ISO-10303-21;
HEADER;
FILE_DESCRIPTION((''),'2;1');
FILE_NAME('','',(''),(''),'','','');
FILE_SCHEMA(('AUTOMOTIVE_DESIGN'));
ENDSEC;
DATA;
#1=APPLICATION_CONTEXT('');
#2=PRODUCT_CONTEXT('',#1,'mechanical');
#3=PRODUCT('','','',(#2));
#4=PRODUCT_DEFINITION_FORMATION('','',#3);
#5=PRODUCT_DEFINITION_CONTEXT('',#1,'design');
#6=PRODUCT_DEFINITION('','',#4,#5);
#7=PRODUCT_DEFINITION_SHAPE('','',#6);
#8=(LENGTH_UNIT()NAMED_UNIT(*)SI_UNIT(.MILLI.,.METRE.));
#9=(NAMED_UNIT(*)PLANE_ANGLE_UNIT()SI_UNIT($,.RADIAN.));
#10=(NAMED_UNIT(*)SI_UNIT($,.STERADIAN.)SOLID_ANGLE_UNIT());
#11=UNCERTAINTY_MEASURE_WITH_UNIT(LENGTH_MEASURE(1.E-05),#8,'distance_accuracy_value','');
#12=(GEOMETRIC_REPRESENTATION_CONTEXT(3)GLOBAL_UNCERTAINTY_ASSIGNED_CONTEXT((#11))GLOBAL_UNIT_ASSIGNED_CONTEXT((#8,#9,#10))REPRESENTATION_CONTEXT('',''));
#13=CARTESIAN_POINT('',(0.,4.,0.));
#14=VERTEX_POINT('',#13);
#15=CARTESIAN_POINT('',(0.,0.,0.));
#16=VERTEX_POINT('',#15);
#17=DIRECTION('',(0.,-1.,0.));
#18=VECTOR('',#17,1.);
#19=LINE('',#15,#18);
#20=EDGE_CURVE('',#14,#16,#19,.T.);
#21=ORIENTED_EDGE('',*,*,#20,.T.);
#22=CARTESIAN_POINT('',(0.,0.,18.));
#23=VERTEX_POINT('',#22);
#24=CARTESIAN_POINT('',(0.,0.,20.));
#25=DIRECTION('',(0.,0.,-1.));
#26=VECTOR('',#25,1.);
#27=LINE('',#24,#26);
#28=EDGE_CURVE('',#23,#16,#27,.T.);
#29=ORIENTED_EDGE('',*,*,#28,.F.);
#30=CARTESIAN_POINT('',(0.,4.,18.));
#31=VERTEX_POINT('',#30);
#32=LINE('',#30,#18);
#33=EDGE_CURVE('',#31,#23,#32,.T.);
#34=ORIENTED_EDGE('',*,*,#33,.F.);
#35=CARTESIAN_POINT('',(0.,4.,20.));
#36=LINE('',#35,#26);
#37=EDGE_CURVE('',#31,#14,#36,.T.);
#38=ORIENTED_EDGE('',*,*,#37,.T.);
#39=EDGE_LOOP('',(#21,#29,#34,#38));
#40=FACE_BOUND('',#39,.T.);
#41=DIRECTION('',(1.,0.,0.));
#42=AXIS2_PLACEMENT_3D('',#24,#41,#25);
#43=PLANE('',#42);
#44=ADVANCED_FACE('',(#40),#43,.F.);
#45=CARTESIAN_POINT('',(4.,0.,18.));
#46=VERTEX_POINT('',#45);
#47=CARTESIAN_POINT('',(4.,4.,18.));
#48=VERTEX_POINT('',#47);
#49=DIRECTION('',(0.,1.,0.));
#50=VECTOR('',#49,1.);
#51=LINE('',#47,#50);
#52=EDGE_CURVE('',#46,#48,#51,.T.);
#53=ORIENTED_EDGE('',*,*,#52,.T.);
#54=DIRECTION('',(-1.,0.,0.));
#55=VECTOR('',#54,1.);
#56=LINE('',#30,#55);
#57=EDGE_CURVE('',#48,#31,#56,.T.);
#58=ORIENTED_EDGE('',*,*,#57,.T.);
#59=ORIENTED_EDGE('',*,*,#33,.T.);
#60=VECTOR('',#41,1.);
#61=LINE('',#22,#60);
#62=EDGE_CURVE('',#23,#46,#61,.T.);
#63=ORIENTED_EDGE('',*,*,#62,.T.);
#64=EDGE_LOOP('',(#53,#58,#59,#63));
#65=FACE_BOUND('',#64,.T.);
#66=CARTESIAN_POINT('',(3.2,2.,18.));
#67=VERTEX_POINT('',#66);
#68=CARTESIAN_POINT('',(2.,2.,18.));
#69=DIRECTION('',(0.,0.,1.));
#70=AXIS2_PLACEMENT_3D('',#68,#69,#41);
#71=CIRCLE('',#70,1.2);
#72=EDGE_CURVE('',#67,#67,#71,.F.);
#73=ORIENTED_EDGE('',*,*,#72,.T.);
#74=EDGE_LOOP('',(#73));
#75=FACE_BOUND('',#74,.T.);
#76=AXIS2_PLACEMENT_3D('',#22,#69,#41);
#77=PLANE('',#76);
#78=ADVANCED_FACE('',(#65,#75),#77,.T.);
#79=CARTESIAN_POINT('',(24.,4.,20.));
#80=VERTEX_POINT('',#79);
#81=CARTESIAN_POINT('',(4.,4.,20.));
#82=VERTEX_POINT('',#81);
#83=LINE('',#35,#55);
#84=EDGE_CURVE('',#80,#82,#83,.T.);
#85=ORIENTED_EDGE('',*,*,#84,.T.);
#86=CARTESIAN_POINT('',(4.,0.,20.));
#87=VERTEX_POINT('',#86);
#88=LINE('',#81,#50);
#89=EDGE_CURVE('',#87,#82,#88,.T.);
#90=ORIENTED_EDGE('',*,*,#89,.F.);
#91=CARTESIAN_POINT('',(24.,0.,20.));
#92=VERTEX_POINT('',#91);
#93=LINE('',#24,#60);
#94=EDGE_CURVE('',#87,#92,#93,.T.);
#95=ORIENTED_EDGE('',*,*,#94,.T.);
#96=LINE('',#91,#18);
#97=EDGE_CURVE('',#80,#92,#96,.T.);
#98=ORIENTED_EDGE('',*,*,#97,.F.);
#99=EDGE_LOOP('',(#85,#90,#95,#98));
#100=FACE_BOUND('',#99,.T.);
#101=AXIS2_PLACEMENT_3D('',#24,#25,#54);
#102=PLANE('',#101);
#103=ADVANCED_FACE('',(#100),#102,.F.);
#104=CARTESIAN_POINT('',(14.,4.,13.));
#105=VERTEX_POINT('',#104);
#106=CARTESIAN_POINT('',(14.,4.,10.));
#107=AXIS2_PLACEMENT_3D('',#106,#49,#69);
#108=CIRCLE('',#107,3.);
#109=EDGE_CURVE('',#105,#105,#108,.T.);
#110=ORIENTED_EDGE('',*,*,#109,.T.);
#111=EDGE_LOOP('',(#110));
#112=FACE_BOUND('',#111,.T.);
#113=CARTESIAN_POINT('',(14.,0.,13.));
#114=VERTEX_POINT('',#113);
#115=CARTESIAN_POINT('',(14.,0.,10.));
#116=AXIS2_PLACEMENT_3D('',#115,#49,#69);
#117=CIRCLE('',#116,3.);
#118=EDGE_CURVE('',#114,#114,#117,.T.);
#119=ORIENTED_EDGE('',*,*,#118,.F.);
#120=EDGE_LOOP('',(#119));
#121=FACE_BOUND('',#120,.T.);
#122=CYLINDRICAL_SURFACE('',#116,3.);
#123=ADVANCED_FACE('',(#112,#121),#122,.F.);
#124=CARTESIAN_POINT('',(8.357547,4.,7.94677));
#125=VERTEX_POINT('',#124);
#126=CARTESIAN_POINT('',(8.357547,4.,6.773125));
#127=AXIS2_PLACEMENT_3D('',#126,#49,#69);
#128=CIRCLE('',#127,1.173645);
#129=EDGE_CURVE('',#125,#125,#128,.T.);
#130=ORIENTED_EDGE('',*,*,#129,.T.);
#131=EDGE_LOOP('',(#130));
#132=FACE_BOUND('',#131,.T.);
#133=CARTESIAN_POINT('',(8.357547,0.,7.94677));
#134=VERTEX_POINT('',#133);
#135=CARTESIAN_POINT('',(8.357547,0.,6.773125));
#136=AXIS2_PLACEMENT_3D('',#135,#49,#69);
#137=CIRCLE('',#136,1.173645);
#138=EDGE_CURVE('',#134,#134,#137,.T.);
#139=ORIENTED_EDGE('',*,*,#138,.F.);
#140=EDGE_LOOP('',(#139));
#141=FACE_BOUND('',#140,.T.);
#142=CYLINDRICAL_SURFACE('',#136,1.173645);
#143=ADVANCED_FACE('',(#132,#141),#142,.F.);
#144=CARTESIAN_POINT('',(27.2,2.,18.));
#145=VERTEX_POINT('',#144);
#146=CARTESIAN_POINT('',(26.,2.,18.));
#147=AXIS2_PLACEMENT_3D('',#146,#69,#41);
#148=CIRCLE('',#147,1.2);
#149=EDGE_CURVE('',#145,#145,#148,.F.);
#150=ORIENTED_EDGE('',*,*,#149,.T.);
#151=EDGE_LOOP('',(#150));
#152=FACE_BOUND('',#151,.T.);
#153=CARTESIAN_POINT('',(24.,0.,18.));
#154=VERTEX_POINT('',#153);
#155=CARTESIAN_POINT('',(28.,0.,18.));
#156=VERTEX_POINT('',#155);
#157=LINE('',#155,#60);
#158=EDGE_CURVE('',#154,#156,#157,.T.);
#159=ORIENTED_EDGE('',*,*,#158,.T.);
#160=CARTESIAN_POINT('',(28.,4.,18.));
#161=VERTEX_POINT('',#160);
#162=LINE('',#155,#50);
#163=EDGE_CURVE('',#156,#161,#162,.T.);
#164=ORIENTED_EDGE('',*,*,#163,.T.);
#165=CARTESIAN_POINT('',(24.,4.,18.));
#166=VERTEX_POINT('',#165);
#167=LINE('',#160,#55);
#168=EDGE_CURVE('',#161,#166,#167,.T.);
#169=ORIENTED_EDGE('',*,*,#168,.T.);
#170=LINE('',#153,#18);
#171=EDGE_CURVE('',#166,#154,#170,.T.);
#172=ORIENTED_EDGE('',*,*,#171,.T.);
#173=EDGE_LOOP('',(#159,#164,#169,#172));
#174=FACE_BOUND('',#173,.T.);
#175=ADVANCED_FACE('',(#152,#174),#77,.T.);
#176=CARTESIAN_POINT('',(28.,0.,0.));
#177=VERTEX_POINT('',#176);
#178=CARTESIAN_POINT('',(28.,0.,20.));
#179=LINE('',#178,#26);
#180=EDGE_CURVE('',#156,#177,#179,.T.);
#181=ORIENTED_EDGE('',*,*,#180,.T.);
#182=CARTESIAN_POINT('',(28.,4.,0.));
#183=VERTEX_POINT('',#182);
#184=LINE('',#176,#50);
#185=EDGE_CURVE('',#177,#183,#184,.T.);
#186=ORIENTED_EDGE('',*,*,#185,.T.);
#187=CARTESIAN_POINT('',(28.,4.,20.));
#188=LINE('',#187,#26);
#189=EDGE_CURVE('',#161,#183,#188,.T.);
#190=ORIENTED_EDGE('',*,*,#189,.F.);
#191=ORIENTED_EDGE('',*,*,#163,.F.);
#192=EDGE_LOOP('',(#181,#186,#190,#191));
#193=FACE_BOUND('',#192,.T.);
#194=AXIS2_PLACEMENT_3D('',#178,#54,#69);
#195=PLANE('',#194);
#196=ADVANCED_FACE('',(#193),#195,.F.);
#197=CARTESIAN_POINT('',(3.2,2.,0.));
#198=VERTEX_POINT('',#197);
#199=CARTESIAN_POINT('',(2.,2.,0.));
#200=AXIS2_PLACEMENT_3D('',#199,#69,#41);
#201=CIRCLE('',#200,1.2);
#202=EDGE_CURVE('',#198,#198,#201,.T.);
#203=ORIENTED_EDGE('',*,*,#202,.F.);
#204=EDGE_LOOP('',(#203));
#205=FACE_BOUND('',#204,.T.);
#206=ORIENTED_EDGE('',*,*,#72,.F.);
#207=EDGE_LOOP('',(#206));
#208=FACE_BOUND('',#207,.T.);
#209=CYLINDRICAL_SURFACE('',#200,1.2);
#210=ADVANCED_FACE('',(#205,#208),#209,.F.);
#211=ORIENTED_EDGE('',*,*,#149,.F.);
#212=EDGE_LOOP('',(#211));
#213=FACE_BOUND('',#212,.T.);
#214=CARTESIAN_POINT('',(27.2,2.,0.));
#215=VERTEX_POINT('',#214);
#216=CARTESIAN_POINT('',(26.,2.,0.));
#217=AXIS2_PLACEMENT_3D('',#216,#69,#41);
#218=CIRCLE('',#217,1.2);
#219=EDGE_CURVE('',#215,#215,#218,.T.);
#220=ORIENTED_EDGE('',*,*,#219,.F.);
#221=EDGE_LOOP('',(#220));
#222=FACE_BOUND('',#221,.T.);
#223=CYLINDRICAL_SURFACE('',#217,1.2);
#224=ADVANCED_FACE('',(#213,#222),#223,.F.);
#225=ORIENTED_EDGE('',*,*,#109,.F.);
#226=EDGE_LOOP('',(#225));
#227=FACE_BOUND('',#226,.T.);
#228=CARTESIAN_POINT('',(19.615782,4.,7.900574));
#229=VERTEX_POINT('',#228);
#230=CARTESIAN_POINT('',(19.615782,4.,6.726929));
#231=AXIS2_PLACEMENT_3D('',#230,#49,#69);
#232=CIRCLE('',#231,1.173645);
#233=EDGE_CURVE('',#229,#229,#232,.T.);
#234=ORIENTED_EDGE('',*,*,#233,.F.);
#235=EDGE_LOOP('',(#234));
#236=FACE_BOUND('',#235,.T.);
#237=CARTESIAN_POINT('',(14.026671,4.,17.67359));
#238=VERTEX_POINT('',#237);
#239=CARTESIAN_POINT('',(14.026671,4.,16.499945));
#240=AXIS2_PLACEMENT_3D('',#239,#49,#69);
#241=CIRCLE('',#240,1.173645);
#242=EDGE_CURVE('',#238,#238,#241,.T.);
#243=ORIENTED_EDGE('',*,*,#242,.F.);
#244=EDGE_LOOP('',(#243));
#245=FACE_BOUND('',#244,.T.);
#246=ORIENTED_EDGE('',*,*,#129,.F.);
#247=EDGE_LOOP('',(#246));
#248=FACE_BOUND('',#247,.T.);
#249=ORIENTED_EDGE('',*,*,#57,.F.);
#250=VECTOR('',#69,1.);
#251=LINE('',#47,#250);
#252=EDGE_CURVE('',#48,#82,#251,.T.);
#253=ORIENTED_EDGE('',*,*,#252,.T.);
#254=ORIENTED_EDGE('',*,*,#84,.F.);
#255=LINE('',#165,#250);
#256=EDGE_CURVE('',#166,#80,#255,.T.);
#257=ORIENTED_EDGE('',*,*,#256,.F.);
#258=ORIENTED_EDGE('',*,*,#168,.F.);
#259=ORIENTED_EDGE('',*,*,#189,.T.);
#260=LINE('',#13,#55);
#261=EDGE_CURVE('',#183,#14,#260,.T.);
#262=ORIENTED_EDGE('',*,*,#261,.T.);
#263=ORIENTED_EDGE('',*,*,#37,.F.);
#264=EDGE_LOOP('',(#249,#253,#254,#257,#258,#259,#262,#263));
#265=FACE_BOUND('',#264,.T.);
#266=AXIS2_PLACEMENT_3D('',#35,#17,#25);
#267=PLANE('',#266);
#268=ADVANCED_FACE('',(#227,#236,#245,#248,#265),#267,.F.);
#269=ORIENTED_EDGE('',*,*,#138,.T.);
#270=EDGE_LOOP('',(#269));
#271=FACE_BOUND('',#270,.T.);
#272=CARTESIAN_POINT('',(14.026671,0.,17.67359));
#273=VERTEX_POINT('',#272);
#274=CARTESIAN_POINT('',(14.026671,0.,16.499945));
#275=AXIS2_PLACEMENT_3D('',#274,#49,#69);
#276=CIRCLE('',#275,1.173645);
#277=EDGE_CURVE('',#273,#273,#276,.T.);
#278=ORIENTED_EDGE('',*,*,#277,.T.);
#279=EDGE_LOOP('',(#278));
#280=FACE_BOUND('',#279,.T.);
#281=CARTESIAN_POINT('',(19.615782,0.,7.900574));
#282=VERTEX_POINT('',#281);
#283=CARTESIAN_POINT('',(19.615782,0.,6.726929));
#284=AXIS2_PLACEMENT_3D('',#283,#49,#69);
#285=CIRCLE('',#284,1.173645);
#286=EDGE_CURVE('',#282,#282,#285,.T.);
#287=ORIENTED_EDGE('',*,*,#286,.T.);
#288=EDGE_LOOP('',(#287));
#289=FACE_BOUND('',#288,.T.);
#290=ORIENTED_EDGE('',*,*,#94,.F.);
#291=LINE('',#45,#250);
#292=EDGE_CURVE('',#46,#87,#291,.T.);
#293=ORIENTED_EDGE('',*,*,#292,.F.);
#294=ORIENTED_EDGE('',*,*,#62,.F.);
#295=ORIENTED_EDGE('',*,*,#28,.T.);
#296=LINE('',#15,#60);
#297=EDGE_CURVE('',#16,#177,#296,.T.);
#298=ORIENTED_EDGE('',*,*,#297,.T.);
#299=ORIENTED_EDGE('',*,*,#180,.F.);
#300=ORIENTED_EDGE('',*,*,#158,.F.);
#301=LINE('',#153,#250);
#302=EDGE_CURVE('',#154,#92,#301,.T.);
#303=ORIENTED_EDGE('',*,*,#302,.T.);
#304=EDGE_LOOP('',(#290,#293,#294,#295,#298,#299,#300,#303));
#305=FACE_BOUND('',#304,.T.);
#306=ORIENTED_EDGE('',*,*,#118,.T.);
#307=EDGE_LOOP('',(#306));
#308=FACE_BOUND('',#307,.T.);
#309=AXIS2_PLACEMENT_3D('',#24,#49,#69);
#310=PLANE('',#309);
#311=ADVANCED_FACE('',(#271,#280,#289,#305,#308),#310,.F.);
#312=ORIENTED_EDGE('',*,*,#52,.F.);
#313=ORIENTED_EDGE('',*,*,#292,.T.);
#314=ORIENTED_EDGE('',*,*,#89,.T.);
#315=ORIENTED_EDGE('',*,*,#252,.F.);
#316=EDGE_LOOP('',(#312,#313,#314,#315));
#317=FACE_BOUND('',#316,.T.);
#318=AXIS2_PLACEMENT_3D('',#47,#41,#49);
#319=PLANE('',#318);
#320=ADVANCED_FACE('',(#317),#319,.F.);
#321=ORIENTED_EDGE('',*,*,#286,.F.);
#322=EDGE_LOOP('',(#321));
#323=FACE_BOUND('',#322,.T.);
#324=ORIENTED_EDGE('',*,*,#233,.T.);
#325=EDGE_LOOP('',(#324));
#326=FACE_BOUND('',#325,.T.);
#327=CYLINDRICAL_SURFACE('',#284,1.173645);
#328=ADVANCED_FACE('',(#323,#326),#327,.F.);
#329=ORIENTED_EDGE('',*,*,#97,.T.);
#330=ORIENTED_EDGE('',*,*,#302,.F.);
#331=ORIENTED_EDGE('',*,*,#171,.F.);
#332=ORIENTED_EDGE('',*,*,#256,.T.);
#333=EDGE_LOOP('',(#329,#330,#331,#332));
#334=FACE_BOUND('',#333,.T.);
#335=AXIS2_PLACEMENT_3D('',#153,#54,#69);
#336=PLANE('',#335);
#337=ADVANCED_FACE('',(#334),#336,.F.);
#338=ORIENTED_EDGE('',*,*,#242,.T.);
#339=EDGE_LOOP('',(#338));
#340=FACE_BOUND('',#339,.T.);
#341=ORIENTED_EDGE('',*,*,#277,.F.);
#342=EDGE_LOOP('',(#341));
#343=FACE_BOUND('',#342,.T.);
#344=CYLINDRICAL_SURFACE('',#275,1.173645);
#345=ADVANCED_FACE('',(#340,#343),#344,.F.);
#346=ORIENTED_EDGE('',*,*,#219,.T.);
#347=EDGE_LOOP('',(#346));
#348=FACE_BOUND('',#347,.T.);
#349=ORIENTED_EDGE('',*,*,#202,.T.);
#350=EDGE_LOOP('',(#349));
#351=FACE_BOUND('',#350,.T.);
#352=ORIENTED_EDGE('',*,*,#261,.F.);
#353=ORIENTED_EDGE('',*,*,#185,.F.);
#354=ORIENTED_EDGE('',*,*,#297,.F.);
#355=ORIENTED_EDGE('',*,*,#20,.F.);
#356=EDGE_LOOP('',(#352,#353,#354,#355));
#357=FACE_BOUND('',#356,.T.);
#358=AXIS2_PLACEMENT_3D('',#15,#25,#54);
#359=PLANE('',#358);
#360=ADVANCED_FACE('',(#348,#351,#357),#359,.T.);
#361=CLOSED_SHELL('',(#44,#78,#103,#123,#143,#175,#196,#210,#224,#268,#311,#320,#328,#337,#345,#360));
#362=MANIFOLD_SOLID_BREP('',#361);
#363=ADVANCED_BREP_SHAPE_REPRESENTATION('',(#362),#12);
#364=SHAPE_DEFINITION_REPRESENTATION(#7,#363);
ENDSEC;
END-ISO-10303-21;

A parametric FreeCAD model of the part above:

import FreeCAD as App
import Part
import Sketcher
Q = App.Units.Quantity


def add_polygon(sketch, points):
    """Adds a closed chain of lines whose ends are joined by coincident constraints."""
    first, n = sketch.GeometryCount, len(points)
    for a, b in zip(points, points[1:] + points[:1]):
        sketch.addGeometry(Part.LineSegment(App.Vector(*a, 0), App.Vector(*b, 0)), False)
    for i in range(n):
        sketch.addConstraint(Sketcher.Constraint("Coincident", first + i, 2, first + (i + 1) % n, 1))

doc = App.newDocument("Part")
body = doc.addObject("PartDesign::Body", "Body")

# Sketch on XY plane
sketch1 = body.newObject("Sketcher::SketchObject", "Sketch")
sketch1.AttachmentSupport = (doc.getObject("XY_Plane"), [""])
sketch1.MapMode = "FlatFace"
add_polygon(sketch1, [(0, 4), (0, 0), (28, 0), (28, 4)])  # lines 0-3
sketch1.addConstraint(Sketcher.Constraint("Vertical", 0))
sketch1.addConstraint(Sketcher.Constraint("Horizontal", 1))
sketch1.addConstraint(Sketcher.Constraint("Vertical", 2))
sketch1.addConstraint(Sketcher.Constraint("Horizontal", 3))
sketch1.addConstraint(Sketcher.Constraint("Coincident", 0, 2, -1, 1))
sketch1.addConstraint(Sketcher.Constraint("DistanceX", 1, 1, 1, 2, Q("28 mm")))
sketch1.addConstraint(Sketcher.Constraint("DistanceY", 0, 2, 0, 1, Q("4 mm")))
pad1 = body.newObject("PartDesign::Pad", "Pad")
pad1.Profile = sketch1
pad1.Length = 20

# Sketch on XY plane
sketch2 = body.newObject("Sketcher::SketchObject", "Sketch001")
sketch2.AttachmentSupport = (doc.getObject("XY_Plane"), [""])
sketch2.MapMode = "FlatFace"
sketch2.AttachmentOffset = App.Placement(App.Vector(0, 0, 20), App.Rotation())
sketch2.addGeometry(Part.Circle(App.Vector(2, 2, 0), App.Vector(0, 0, 1), 1.2), False)
sketch2.addGeometry(Part.Circle(App.Vector(26, 2, 0), App.Vector(0, 0, 1), 1.2), False)
sketch2.addConstraint(Sketcher.Constraint("Equal", 0, 1))
sketch2.addConstraint(Sketcher.Constraint("Horizontal", 0, 3, 1, 3))
sketch2.addConstraint(Sketcher.Constraint("Diameter", 0, Q("2.4 mm")))
sketch2.addConstraint(Sketcher.Constraint("DistanceX", -1, 1, 0, 3, Q("2 mm")))
sketch2.addConstraint(Sketcher.Constraint("DistanceY", -1, 1, 0, 3, Q("2 mm")))
sketch2.addConstraint(Sketcher.Constraint("DistanceX", -1, 1, 1, 3, Q("26 mm")))
pocket1 = body.newObject("PartDesign::Pocket", "Pocket")
pocket1.Profile = sketch2
pocket1.Type = "ThroughAll"

# Sketch on XZ plane
sketch3 = body.newObject("Sketcher::SketchObject", "Sketch002")
sketch3.AttachmentSupport = (doc.getObject("XZ_Plane"), [""])
sketch3.MapMode = "FlatFace"
sketch3.AttachmentOffset = App.Placement(App.Vector(0, 0, -4), App.Rotation())
sketch3.addGeometry(Part.Circle(App.Vector(14, 10, 0), App.Vector(0, 0, 1), 3), False)
sketch3.addGeometry(Part.Circle(App.Vector(8.4, 6.8, 0), App.Vector(0, 0, 1), 1.2), False)
sketch3.addGeometry(Part.Circle(App.Vector(19.6, 6.7, 0), App.Vector(0, 0, 1), 1.2), False)
sketch3.addGeometry(Part.Circle(App.Vector(14, 16.5, 0), App.Vector(0, 0, 1), 1.2), False)
sketch3.addConstraint(Sketcher.Constraint("Equal", 1, 2))
sketch3.addConstraint(Sketcher.Constraint("Equal", 2, 3))
sketch3.addConstraint(Sketcher.Constraint("Diameter", 0, Q("6 mm")))
sketch3.addConstraint(Sketcher.Constraint("DistanceX", -1, 1, 0, 3, Q("14 mm")))
sketch3.addConstraint(Sketcher.Constraint("DistanceY", -1, 1, 0, 3, Q("10 mm")))
sketch3.addConstraint(Sketcher.Constraint("Diameter", 1, Q("2.34729 mm")))
sketch3.addConstraint(Sketcher.Constraint("DistanceY", -1, 1, 2, 3, Q("6.726929 mm")))
sketch3.addConstraint(Sketcher.Constraint("DistanceX", -1, 1, 3, 3, Q("14.026671 mm")))
sketch3.addConstraint(Sketcher.Constraint("DistanceY", 1, 3, 3, 3, Q("9.72682 mm")))
sketch3.addConstraint(Sketcher.Constraint("DistanceX", 3, 3, 2, 3, Q("5.589111 mm")))
sketch3.addConstraint(Sketcher.Constraint("DistanceX", -1, 1, 1, 3, Q("8.357547 mm")))
sketch3.addConstraint(Sketcher.Constraint("DistanceY", -1, 1, 1, 3, Q("6.773125 mm")))
pocket2 = body.newObject("PartDesign::Pocket", "Pocket001")
pocket2.Profile = sketch3
pocket2.Type = "ThroughAll"
pocket2.Reversed = True

# Sketch on XY plane
sketch4 = body.newObject("Sketcher::SketchObject", "Sketch003")
sketch4.AttachmentSupport = (doc.getObject("XY_Plane"), [""])
sketch4.MapMode = "FlatFace"
sketch4.AttachmentOffset = App.Placement(App.Vector(0, 0, 20), App.Rotation())
add_polygon(sketch4, [(0, 4), (0, 0), (4, 0), (4, 4)])  # lines 0-3
add_polygon(sketch4, [(24, 4), (24, 0), (28, 0), (28, 4)])  # lines 4-7
sketch4.addConstraint(Sketcher.Constraint("Vertical", 0))
sketch4.addConstraint(Sketcher.Constraint("Horizontal", 1))
sketch4.addConstraint(Sketcher.Constraint("Vertical", 2))
sketch4.addConstraint(Sketcher.Constraint("Horizontal", 3))
sketch4.addConstraint(Sketcher.Constraint("Vertical", 4))
sketch4.addConstraint(Sketcher.Constraint("Horizontal", 5))
sketch4.addConstraint(Sketcher.Constraint("Vertical", 6))
sketch4.addConstraint(Sketcher.Constraint("Horizontal", 7))
sketch4.addConstraint(Sketcher.Constraint("Coincident", 0, 2, -1, 1))
sketch4.addConstraint(Sketcher.Constraint("PointOnObject", 4, 2, -1))
sketch4.addConstraint(Sketcher.Constraint("Horizontal", 3, 2, 6, 2))
sketch4.addConstraint(Sketcher.Constraint("Equal", 3, 5))
sketch4.addConstraint(Sketcher.Constraint("Equal", 7, 0))
sketch4.addConstraint(Sketcher.Constraint("DistanceX", 1, 1, 1, 2, Q("4 mm")))
sketch4.addConstraint(Sketcher.Constraint("DistanceX", -1, 1, 4, 2, Q("24 mm")))
pocket3 = body.newObject("PartDesign::Pocket", "Pocket002")
pocket3.Profile = sketch4
pocket3.Length = 2

doc.recompute()
